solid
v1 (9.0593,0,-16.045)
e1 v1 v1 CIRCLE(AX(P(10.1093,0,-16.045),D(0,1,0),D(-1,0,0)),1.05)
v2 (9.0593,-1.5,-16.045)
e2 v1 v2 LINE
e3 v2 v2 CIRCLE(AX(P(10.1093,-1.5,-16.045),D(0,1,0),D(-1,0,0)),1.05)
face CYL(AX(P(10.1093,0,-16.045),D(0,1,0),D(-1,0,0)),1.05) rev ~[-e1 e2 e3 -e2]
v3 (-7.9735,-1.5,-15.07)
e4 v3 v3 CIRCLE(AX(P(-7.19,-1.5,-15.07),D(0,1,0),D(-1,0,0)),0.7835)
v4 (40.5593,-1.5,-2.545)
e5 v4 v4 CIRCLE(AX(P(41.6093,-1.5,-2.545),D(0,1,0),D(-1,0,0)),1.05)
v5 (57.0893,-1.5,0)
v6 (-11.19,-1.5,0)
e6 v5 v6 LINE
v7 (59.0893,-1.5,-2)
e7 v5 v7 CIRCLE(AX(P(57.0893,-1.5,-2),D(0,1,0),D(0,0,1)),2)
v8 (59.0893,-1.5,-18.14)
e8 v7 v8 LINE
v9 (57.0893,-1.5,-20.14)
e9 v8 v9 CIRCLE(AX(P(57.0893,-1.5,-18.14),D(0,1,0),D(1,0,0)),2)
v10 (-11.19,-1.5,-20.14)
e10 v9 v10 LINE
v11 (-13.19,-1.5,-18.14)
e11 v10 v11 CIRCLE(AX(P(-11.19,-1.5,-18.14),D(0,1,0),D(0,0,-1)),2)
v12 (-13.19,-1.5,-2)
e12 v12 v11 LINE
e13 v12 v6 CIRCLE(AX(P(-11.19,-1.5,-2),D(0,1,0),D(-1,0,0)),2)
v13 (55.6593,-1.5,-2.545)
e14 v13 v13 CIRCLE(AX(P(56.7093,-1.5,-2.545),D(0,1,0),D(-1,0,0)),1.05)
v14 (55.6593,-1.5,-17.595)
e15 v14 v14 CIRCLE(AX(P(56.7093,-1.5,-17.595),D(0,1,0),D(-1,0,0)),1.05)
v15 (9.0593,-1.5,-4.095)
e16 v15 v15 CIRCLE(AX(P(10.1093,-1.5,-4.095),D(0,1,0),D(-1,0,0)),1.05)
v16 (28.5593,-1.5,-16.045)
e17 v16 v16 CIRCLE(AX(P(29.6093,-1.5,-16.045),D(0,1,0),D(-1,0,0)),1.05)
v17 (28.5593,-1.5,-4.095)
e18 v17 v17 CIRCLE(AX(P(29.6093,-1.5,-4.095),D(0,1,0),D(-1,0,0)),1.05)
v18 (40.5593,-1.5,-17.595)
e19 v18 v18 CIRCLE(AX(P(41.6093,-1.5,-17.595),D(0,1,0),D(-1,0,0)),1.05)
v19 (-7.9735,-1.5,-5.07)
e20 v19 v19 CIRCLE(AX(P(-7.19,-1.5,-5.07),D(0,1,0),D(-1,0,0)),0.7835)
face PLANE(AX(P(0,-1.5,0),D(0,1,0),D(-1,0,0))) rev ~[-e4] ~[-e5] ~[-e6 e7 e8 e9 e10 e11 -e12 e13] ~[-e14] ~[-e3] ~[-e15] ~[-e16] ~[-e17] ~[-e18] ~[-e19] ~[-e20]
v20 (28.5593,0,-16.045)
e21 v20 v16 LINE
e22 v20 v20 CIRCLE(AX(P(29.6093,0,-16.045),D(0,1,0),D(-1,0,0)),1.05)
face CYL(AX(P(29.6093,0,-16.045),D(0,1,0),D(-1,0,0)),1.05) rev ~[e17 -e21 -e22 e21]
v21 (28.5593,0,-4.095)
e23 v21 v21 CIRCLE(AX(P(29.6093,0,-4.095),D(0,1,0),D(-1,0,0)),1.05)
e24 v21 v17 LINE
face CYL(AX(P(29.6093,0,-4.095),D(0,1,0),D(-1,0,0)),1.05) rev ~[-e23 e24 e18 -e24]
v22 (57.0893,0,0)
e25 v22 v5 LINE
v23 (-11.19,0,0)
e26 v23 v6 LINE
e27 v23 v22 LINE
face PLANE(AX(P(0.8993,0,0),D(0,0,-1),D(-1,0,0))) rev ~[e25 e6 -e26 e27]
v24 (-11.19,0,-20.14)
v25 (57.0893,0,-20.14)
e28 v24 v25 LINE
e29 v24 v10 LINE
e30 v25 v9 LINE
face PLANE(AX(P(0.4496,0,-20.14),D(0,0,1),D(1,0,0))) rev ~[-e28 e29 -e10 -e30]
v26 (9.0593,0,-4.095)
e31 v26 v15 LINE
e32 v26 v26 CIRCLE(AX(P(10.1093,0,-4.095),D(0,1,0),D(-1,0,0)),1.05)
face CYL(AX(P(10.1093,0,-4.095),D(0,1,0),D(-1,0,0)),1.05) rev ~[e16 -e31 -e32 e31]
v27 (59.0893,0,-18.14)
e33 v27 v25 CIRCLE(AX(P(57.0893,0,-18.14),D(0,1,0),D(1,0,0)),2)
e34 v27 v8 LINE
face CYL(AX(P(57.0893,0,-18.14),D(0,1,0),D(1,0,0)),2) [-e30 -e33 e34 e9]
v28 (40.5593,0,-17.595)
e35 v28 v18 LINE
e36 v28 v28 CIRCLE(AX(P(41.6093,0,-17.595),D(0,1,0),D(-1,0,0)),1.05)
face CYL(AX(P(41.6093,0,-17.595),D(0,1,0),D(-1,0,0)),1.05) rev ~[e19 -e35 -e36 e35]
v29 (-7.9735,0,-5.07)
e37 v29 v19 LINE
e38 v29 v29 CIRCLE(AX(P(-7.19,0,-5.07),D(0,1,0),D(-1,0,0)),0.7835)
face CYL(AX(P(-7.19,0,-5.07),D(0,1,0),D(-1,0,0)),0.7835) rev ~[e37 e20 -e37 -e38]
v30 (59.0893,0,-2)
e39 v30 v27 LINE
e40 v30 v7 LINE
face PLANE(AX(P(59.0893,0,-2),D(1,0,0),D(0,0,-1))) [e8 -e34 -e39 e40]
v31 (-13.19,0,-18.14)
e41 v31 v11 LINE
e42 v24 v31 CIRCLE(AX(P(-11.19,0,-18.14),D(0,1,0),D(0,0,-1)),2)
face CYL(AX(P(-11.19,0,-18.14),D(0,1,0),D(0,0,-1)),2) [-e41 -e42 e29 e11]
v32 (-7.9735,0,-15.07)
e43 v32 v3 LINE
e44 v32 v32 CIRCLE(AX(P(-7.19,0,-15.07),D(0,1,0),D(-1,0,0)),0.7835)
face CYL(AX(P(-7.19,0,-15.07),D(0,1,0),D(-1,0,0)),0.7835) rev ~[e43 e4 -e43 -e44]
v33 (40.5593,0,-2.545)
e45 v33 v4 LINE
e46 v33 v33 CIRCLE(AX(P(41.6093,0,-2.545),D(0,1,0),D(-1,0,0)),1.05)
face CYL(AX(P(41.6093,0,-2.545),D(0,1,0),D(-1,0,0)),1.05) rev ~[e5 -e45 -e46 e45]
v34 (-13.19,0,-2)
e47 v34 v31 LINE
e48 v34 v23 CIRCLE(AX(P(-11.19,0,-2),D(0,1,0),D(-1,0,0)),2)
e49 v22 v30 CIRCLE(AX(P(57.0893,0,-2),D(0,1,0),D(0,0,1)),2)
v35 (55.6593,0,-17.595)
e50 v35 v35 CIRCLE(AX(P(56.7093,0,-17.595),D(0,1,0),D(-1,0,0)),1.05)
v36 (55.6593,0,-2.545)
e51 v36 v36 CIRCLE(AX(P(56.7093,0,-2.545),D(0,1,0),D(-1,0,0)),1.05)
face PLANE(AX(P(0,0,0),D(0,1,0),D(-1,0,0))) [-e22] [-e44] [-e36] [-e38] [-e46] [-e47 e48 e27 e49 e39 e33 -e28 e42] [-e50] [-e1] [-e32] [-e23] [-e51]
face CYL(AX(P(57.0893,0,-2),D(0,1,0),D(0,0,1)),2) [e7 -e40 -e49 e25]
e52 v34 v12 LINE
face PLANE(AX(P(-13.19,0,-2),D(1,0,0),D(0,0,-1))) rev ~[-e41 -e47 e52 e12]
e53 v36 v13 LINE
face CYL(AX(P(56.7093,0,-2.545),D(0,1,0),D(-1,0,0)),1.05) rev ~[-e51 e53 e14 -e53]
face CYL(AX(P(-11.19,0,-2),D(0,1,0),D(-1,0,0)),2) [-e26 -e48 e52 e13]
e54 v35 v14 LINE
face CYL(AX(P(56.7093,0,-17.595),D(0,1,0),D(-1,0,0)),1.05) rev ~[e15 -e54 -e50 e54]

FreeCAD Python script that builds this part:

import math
import FreeCAD as App
import Part
import Sketcher

V = App.Vector

doc = App.newDocument("Part")
body = doc.addObject("PartDesign::Body", "Body")

sketch1 = body.newObject("Sketcher::SketchObject", "Sketch")
sketch1.AttachmentSupport = (doc.getObject("XZ_Plane"), [""])
sketch1.MapMode = "FlatFace"
sketch1.addGeometry([
    Part.ArcOfCircle(Part.Circle(V(-11.2, -18.1, 0), V(0, 0, 1), 2), math.radians(180), math.radians(270)),
    Part.LineSegment(V(-13.2, -18.1, 0), V(-13.2, -2, 0)),
    Part.ArcOfCircle(Part.Circle(V(-11.2, -2, 0), V(0, 0, 1), 2), math.radians(90), math.radians(180)),
    Part.LineSegment(V(-11.2, 0, 0), V(57.1, 0, 0)),
    Part.ArcOfCircle(Part.Circle(V(57.1, -2, 0), V(0, 0, 1), 2), math.radians(0), math.radians(90)),
    Part.LineSegment(V(59.1, -2, 0), V(59.1, -18.1, 0)),
    Part.ArcOfCircle(Part.Circle(V(57.1, -18.1, 0), V(0, 0, 1), 2), math.radians(-90), math.radians(0)),
    Part.LineSegment(V(57.1, -20.1, 0), V(-11.2, -20.1, 0)),
    Part.Circle(V(10.1, -4.1, 0), V(0, 0, 1), 1.1),
    Part.Circle(V(56.7, -17.6, 0), V(0, 0, 1), 1.1),
    Part.Circle(V(41.6, -17.6, 0), V(0, 0, 1), 1.1),
    Part.Circle(V(29.6, -16, 0), V(0, 0, 1), 1.1),
    Part.Circle(V(10.1, -16, 0), V(0, 0, 1), 1.1),
    Part.Circle(V(56.7, -2.5, 0), V(0, 0, 1), 1.1),
    Part.Circle(V(41.6, -2.5, 0), V(0, 0, 1), 1.1),
    Part.Circle(V(29.6, -4.1, 0), V(0, 0, 1), 1.1),
    Part.Circle(V(-7.2, -5.1, 0), V(0, 0, 1), 0.8),
    Part.Circle(V(-7.2, -15.1, 0), V(0, 0, 1), 0.8),
], False)
sketch1.addConstraint([
    Sketcher.Constraint("Tangent", 0, 1, 1, 1),
    Sketcher.Constraint("Tangent", 1, 2, 2, 2),
    Sketcher.Constraint("Tangent", 2, 1, 3, 1),
    Sketcher.Constraint("Tangent", 3, 2, 4, 2),
    Sketcher.Constraint("Tangent", 4, 1, 5, 1),
    Sketcher.Constraint("Tangent", 5, 2, 6, 2),
    Sketcher.Constraint("Tangent", 6, 1, 7, 1),
    Sketcher.Constraint("Tangent", 7, 2, 0, 2),
    Sketcher.Constraint("Vertical", 1),
    Sketcher.Constraint("Horizontal", 3),
    Sketcher.Constraint("Vertical", 5),
    Sketcher.Constraint("Horizontal", 7),
    Sketcher.Constraint("Equal", 0, 2),
    Sketcher.Constraint("Equal", 2, 4),
    Sketcher.Constraint("Equal", 4, 6),
    Sketcher.Constraint("Equal", 8, 9),
    Sketcher.Constraint("Equal", 9, 10),
    Sketcher.Constraint("Equal", 10, 11),
    Sketcher.Constraint("Equal", 11, 12),
    Sketcher.Constraint("Equal", 12, 13),
    Sketcher.Constraint("Equal", 13, 14),
    Sketcher.Constraint("Equal", 14, 15),
    Sketcher.Constraint("Equal", 16, 17),
    Sketcher.Constraint("PointOnObject", 2, 1, -1),
    Sketcher.Constraint("Horizontal", 9, 3, 10, 3),
    Sketcher.Constraint("Horizontal", 11, 3, 12, 3),
    Sketcher.Constraint("Horizontal", 13, 3, 14, 3),
    Sketcher.Constraint("Horizontal", 8, 3, 15, 3),
    Sketcher.Constraint("Vertical", 8, 3, 12, 3),
    Sketcher.Constraint("Vertical", 9, 3, 13, 3),
    Sketcher.Constraint("Vertical", 10, 3, 14, 3),
    Sketcher.Constraint("Vertical", 11, 3, 15, 3),
    Sketcher.Constraint("Vertical", 16, 3, 17, 3),
    Sketcher.Constraint("Radius", 0, 2.0),
    Sketcher.Constraint("Diameter", 8, 2.1),
    Sketcher.Constraint("Diameter", 16, 1.567),
    Sketcher.Constraint("DistanceX", 11, 3, 10, 3, 12.0),
    Sketcher.Constraint("DistanceX", 2, 3, 16, 3, 4.0),
    Sketcher.Constraint("DistanceY", 17, 3, 16, 3, 10.0),
    Sketcher.Constraint("DistanceY", 1, 1, 1, 2, 16.14),
    Sketcher.Constraint("DistanceX", 8, 3, 9, 3, 46.6),
    Sketcher.Constraint("DistanceY", 9, 3, 8, 3, 13.5),
    Sketcher.Constraint("DistanceX", 10, 3, 9, 3, 15.1),
    Sketcher.Constraint("DistanceY", 11, 3, 13, 3, 13.5),
    Sketcher.Constraint("DistanceX", 0, 3, -1, 1, 11.19),
    Sketcher.Constraint("DistanceY", 16, 3, -1, 1, 5.07),
    Sketcher.Constraint("DistanceX", 8, 3, 4, 3, 46.98),
    Sketcher.Constraint("DistanceY", 10, 3, 11, 3, 1.55),
    Sketcher.Constraint("DistanceX", 3, 1, 3, 2, 68.2793),
    Sketcher.Constraint("DistanceY", 8, 3, -1, 1, 4.095),
])
pad1 = body.newObject("PartDesign::Pad", "Pad")
pad1.Profile = sketch1
pad1.Length = 1.5

doc.recompute()
